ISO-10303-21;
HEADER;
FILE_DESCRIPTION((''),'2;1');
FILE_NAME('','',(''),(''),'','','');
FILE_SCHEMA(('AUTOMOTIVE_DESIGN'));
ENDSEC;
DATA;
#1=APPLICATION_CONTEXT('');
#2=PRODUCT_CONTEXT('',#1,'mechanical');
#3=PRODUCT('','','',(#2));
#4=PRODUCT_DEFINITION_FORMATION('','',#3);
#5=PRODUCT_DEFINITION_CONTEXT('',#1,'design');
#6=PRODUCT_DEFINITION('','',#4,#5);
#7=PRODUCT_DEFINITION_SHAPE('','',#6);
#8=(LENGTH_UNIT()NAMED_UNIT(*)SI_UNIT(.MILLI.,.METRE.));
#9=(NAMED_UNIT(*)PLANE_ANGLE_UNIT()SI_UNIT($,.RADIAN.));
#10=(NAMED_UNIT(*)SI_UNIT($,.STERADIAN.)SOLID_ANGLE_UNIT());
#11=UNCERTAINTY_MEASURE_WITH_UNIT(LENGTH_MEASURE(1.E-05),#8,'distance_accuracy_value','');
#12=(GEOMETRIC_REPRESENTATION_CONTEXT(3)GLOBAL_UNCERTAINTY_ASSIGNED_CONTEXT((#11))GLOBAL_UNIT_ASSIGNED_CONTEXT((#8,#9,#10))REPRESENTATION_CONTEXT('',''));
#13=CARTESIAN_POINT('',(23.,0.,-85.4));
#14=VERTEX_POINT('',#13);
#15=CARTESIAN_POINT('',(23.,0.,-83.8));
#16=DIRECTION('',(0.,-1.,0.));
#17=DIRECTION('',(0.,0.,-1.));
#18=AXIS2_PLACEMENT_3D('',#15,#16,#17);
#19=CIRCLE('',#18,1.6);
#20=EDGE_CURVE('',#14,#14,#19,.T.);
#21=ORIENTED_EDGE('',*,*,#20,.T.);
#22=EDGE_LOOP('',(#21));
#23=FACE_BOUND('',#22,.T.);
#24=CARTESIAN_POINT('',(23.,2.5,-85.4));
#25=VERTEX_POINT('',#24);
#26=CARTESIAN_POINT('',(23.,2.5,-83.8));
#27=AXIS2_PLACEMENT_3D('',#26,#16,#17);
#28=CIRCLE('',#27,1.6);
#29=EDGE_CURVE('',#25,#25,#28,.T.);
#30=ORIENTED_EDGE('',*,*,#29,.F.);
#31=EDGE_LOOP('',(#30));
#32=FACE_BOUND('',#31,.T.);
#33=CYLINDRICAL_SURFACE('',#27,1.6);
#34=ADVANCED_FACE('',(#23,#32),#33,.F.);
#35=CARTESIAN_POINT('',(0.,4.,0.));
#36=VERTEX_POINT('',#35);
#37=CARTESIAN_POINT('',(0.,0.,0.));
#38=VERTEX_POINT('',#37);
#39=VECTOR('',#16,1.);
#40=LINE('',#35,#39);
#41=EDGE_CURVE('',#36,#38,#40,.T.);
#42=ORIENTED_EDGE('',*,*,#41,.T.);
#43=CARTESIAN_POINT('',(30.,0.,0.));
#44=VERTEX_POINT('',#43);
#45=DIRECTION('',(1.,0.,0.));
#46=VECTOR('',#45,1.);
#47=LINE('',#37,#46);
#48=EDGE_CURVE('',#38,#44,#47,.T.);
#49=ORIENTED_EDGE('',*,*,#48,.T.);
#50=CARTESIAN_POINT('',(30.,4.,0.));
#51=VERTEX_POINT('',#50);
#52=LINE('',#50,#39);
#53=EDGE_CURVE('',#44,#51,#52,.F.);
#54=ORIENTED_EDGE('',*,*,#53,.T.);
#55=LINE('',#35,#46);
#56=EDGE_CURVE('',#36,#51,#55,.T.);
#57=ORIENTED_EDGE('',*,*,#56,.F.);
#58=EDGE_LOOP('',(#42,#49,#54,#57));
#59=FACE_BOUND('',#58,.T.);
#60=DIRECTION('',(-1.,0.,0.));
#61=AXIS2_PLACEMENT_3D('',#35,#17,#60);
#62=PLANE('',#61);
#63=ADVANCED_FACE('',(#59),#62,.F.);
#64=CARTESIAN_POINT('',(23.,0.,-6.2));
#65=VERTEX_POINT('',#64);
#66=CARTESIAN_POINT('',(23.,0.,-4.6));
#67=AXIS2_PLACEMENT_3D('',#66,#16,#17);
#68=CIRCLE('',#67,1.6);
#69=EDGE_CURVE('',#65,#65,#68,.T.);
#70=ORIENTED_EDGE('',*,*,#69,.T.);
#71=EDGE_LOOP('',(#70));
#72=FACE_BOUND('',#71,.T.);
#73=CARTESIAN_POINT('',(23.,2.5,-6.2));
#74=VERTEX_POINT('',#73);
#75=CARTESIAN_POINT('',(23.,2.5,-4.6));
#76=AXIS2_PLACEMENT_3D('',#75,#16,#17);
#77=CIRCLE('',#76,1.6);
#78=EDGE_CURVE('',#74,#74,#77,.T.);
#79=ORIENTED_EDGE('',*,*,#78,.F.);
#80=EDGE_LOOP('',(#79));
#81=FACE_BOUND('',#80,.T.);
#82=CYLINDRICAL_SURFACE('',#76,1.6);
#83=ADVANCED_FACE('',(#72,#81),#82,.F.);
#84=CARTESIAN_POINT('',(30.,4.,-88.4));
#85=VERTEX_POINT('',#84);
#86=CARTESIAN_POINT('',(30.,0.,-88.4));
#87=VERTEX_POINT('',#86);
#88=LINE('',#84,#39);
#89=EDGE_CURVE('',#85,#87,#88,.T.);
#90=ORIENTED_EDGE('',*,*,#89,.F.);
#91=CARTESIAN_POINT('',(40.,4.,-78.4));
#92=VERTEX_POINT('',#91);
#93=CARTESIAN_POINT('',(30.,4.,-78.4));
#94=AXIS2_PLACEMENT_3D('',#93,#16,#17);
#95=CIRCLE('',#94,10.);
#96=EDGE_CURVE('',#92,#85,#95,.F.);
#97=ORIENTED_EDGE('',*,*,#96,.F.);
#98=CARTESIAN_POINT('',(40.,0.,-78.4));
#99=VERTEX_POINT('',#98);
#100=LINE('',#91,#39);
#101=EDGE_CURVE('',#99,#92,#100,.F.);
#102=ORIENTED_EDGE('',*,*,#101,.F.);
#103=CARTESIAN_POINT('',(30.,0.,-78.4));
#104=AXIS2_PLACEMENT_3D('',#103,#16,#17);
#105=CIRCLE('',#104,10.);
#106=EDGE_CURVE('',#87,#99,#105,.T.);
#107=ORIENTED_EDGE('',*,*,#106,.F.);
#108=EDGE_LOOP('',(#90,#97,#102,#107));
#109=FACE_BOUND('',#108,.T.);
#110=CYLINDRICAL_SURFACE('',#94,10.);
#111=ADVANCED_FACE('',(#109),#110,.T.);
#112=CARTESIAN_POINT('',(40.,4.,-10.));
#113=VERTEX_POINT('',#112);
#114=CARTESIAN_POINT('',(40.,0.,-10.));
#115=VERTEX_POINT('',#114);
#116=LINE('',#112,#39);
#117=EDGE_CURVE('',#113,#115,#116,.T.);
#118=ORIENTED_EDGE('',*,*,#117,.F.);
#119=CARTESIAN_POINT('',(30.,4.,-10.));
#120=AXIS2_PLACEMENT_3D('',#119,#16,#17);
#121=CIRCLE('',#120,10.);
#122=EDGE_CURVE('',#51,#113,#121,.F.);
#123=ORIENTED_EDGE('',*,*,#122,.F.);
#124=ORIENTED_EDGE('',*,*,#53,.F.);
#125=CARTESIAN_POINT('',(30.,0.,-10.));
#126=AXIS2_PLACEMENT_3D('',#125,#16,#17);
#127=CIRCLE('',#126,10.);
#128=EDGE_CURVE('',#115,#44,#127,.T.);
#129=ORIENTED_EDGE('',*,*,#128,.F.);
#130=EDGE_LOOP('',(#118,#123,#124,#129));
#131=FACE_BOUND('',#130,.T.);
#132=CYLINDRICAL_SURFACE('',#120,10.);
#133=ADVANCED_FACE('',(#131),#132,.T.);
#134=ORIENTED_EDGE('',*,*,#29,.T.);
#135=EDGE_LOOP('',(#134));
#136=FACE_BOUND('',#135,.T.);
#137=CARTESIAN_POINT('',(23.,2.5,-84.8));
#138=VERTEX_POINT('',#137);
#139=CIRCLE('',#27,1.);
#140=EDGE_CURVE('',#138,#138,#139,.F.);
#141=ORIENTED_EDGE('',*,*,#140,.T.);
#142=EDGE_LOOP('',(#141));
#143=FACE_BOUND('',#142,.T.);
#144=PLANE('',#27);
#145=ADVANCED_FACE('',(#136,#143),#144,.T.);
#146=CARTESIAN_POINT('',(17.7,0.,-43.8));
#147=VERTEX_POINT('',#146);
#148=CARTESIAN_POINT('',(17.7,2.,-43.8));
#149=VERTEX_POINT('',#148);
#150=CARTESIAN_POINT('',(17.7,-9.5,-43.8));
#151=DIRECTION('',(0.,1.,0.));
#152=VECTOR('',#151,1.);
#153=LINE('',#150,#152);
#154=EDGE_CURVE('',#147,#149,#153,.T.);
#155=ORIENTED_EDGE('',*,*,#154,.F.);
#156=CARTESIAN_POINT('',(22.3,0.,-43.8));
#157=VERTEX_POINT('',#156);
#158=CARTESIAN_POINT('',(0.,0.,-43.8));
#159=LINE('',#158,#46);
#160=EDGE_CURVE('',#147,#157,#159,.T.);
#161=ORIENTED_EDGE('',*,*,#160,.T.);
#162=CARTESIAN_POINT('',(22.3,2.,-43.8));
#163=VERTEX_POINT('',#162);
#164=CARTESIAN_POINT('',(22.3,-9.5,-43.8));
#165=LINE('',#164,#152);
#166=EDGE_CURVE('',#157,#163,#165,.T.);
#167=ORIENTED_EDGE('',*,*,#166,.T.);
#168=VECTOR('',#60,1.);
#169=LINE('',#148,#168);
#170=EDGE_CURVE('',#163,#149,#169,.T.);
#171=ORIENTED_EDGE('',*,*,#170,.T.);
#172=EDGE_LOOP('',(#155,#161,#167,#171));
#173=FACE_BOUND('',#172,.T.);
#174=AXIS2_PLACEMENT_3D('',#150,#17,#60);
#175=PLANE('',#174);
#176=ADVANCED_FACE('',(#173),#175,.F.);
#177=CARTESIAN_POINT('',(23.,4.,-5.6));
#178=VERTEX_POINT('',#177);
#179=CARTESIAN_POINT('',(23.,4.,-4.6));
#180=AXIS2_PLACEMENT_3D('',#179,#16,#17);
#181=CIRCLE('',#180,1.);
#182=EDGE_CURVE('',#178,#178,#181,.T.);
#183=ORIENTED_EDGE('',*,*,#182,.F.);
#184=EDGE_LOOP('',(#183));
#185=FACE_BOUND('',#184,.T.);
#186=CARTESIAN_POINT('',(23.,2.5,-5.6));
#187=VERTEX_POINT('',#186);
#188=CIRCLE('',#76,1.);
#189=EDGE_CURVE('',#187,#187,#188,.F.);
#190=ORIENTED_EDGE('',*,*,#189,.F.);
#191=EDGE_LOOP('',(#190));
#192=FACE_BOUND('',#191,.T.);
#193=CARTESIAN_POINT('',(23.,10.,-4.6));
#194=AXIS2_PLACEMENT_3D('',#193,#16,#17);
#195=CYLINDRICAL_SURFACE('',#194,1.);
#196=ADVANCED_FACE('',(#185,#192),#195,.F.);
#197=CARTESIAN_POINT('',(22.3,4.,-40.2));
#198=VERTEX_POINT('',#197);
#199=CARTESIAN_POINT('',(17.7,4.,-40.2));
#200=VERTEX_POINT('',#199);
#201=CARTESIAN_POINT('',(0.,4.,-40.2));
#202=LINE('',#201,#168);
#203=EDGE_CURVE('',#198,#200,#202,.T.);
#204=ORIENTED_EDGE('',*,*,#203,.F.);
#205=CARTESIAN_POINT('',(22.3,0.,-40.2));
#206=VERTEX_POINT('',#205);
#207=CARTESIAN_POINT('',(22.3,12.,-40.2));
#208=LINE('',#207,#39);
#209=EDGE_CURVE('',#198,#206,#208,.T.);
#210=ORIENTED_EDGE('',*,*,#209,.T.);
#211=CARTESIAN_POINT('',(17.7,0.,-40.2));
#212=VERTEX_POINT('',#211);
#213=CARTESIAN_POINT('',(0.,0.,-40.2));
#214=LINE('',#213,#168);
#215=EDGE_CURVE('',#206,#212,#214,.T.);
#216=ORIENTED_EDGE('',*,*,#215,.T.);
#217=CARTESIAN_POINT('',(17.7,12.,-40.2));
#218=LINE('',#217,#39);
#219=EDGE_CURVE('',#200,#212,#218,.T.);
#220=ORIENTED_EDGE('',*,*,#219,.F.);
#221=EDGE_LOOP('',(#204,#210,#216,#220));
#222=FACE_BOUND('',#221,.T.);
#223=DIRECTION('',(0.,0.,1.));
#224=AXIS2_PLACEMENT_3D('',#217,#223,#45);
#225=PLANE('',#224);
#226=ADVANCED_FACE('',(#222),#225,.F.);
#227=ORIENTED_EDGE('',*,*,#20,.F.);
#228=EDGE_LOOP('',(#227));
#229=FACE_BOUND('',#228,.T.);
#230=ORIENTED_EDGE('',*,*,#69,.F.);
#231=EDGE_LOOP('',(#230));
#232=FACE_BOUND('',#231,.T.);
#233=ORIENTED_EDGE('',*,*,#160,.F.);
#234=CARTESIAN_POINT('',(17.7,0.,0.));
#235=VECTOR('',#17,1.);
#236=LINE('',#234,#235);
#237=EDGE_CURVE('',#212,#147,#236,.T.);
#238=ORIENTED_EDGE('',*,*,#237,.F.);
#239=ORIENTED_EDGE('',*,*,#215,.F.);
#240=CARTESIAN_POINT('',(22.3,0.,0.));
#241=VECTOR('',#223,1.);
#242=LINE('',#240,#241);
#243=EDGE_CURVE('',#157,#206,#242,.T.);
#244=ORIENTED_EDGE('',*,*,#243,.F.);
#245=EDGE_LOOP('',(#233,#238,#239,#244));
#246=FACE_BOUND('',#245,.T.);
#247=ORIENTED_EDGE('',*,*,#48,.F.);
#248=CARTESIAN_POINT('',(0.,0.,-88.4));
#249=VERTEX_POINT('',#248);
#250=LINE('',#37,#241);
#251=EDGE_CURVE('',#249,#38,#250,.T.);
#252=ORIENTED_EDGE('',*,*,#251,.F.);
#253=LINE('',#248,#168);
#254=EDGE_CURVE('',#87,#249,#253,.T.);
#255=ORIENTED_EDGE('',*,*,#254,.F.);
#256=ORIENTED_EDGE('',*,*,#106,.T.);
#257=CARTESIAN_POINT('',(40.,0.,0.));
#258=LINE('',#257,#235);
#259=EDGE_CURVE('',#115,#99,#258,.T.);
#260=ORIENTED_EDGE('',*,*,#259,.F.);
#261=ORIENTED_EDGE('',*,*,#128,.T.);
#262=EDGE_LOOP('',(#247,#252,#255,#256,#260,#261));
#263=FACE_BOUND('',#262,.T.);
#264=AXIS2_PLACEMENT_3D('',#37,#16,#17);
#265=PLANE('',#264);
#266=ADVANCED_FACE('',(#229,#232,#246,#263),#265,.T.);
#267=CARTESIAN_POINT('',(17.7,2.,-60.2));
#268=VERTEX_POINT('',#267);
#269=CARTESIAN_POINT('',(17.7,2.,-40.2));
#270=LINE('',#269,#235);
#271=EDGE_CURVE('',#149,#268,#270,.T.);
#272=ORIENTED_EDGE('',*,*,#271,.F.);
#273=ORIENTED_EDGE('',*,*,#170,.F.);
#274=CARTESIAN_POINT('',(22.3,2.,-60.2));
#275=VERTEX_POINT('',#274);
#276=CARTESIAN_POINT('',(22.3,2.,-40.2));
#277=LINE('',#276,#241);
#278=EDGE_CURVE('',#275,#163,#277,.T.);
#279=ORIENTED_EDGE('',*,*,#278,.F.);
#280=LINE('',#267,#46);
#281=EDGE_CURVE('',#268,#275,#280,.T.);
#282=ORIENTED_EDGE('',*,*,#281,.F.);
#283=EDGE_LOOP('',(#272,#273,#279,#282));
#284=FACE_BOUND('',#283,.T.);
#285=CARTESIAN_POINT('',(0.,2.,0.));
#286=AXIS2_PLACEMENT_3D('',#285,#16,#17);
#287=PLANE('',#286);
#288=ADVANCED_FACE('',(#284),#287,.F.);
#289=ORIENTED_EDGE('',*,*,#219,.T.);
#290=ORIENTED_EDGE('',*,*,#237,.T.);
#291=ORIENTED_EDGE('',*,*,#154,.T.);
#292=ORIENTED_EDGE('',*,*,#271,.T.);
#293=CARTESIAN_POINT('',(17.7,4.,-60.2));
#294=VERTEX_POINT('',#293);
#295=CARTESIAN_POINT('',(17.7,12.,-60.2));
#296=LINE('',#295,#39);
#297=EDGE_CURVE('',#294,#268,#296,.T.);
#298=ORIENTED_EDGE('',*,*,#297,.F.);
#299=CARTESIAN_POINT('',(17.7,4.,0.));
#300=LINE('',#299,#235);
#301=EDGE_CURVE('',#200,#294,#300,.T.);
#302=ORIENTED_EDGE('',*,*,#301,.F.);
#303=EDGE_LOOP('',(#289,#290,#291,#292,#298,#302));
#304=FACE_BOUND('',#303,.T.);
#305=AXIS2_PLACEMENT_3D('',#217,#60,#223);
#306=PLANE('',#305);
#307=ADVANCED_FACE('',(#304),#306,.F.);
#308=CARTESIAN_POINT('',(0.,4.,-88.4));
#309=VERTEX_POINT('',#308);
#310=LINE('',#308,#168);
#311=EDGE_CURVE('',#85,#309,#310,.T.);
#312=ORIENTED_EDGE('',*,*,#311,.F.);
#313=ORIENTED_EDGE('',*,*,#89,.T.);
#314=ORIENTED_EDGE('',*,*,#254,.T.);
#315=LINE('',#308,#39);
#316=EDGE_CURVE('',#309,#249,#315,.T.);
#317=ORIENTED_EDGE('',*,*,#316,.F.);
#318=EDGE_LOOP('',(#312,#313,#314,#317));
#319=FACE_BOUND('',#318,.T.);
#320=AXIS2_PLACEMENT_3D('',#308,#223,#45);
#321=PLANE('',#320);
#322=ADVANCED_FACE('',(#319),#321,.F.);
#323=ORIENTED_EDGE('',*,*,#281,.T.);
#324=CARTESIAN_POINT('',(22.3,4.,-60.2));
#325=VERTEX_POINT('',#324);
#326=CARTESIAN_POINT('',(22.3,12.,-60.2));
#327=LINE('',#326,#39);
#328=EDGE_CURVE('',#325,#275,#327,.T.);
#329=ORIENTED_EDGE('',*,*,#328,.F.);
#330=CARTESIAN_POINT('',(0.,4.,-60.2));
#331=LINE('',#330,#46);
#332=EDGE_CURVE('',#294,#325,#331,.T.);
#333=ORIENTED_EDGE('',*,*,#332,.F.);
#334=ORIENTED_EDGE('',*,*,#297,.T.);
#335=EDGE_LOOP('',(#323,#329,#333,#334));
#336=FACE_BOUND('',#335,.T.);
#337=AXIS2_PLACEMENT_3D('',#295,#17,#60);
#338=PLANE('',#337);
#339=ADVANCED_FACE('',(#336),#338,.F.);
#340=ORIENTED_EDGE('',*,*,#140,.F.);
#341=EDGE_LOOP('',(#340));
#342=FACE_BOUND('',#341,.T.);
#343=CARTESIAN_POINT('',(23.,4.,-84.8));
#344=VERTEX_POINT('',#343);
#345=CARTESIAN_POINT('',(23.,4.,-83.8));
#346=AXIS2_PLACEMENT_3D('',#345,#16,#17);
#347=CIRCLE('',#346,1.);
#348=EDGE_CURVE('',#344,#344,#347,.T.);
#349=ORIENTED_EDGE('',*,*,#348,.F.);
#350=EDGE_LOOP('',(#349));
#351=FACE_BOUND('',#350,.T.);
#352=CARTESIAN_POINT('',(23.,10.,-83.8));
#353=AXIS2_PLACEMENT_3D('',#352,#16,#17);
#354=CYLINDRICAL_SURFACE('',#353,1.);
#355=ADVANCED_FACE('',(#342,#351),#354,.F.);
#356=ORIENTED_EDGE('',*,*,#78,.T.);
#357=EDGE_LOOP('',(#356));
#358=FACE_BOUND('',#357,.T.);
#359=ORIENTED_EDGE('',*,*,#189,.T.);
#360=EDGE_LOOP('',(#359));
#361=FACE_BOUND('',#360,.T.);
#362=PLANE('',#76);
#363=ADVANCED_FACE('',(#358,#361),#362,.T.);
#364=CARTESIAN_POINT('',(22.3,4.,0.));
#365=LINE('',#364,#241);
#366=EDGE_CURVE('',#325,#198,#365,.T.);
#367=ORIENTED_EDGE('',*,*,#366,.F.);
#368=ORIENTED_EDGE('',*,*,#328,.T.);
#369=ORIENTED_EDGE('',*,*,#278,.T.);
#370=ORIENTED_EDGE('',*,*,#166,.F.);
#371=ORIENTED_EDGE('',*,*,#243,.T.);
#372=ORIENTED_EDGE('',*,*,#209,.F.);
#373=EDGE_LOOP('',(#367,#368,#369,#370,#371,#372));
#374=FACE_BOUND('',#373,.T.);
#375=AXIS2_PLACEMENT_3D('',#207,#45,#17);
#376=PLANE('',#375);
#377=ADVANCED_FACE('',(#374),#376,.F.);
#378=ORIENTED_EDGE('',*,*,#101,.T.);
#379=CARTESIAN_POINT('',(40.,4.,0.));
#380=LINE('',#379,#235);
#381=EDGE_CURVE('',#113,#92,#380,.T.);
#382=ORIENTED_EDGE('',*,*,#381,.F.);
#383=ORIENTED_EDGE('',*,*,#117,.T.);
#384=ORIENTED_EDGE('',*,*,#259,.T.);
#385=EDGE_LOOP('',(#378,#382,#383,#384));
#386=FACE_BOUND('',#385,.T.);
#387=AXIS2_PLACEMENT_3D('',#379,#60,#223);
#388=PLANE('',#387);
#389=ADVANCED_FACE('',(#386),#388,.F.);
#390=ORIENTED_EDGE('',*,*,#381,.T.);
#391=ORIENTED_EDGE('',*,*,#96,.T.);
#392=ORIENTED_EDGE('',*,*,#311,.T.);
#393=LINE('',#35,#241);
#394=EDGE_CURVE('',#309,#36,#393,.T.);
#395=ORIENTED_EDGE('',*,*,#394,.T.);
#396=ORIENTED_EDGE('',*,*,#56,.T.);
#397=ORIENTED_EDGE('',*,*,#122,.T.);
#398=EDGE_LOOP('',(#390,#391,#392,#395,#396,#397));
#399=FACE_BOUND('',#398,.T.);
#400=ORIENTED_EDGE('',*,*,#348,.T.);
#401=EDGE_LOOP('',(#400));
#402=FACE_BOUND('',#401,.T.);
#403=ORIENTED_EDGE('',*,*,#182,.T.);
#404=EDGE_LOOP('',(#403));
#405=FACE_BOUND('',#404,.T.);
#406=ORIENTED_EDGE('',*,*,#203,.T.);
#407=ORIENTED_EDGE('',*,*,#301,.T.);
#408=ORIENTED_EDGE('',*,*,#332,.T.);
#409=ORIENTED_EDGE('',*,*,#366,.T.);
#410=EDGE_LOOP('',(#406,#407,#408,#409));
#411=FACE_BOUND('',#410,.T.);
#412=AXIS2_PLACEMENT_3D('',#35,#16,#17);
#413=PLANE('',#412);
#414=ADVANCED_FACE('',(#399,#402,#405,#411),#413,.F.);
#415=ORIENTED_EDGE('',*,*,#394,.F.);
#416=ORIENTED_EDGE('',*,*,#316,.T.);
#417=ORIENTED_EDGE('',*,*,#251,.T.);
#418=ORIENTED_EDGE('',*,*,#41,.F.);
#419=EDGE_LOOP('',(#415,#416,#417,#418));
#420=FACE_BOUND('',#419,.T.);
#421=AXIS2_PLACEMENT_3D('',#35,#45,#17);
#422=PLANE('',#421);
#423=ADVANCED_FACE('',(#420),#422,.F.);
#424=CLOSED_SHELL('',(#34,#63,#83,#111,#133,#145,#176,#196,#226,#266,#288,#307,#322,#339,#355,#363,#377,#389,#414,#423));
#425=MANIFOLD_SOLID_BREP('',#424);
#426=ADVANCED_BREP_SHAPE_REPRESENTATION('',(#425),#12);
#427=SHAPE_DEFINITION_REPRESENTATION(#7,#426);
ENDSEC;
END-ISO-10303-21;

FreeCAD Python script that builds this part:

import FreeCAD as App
import Part
import Sketcher
from FreeCAD import Vector


def edges_at(feature, points):
    """Names of the edges that pass closest to the given points."""
    edges = feature.Shape.Edges
    near = lambda p: min(range(len(edges)), key=lambda i: edges[i].distToShape(Part.Vertex(*p))[0])
    return sorted({f"Edge{near(p) + 1}" for p in points})


def add_polygon(sketch, points):
    """Adds a closed chain of lines whose ends are joined by coincident constraints."""
    first, n = sketch.GeometryCount, len(points)
    for a, b in zip(points, points[1:] + points[:1]):
        sketch.addGeometry(Part.LineSegment(App.Vector(*a, 0), App.Vector(*b, 0)), False)
    for i in range(n):
        sketch.addConstraint(Sketcher.Constraint("Coincident", first + i, 2, first + (i + 1) % n, 1))

doc = App.newDocument("Part")
body = doc.addObject("PartDesign::Body", "Body")

sketch1 = body.newObject("Sketcher::SketchObject", "Sketch")
sketch1.AttachmentSupport = (doc.getObject("XZ_Plane"), [""])
sketch1.MapMode = "FlatFace"
add_polygon(sketch1, [(0, -88), (0, 0), (40, 0), (40, -88)])
sketch1.addConstraint([
    Sketcher.Constraint("Vertical", 0),
    Sketcher.Constraint("Horizontal", 1),
    Sketcher.Constraint("Vertical", 2),
    Sketcher.Constraint("Horizontal", 3),
    Sketcher.Constraint("Coincident", 0, 2, -1, 1),
    Sketcher.Constraint("DistanceX", 1, 1, 1, 2, 40.0),
    Sketcher.Constraint("DistanceY", 0, 1, 0, 2, 88.4),
])
pad1 = body.newObject("PartDesign::Pad", "Pad")
pad1.Profile = sketch1
pad1.Length = 4
pad1.Reversed = True
doc.recompute()

fillet = body.newObject("PartDesign::Fillet", "Fillet")
fillet.Base = (pad1, edges_at(pad1, [(40, 2, -88.4), (40, 2, 0)]))
fillet.Radius = 10

sketch2 = body.newObject("Sketcher::SketchObject", "Sketch001")
sketch2.AttachmentSupport = (doc.getObject("XZ_Plane"), [""])
sketch2.MapMode = "FlatFace"
sketch2.addGeometry([
    Part.Circle(Vector(23, -4.6, 0), Vector(0, 0, 1), 1),
    Part.Circle(Vector(23, -83.8, 0), Vector(0, 0, 1), 1),
], False)
sketch2.addConstraint([
    Sketcher.Constraint("Equal", 0, 1),
    Sketcher.Constraint("Vertical", 0, 3, 1, 3),
    Sketcher.Constraint("Diameter", 0, 2.0),
    Sketcher.Constraint("DistanceX", -1, 1, 0, 3, 23.0),
    Sketcher.Constraint("DistanceY", 0, 3, -1, 1, 4.6),
    Sketcher.Constraint("DistanceY", 1, 3, -1, 1, 83.8),
])
pocket1 = body.newObject("PartDesign::Pocket", "Pocket")
pocket1.Profile = sketch2
pocket1.Length = 10

sketch3 = body.newObject("Sketcher::SketchObject", "Sketch002")
sketch3.AttachmentSupport = (doc.getObject("XZ_Plane"), [""])
sketch3.MapMode = "FlatFace"
sketch3.addGeometry([
    Part.Circle(Vector(23, -4.6, 0), Vector(0, 0, 1), 1.6),
    Part.Circle(Vector(23, -83.8, 0), Vector(0, 0, 1), 1.6),
], False)
sketch3.addConstraint([
    Sketcher.Constraint("Equal", 0, 1),
    Sketcher.Constraint("Vertical", 0, 3, 1, 3),
    Sketcher.Constraint("Diameter", 0, 3.2),
    Sketcher.Constraint("DistanceX", -1, 1, 0, 3, 23.0),
    Sketcher.Constraint("DistanceY", 0, 3, -1, 1, 4.6),
    Sketcher.Constraint("DistanceY", 1, 3, -1, 1, 83.8),
])
pocket2 = body.newObject("PartDesign::Pocket", "Pocket001")
pocket2.Profile = sketch3
pocket2.Length = 2.5

sketch4 = body.newObject("Sketcher::SketchObject", "Sketch003")
sketch4.AttachmentSupport = (doc.getObject("XZ_Plane"), [""])
sketch4.MapMode = "FlatFace"
sketch4.AttachmentOffset = App.Placement(Vector(0, 0, -2), App.Rotation())
add_polygon(sketch4, [(17.7, -40.2), (17.7, -60.2), (22.3, -60.2), (22.3, -40.2)])
sketch4.addConstraint([
    Sketcher.Constraint("Vertical", 0),
    Sketcher.Constraint("Horizontal", 1),
    Sketcher.Constraint("Vertical", 2),
    Sketcher.Constraint("Horizontal", 3),
    Sketcher.Constraint("DistanceY", 0, 2, 0, 1, 20.0),
    Sketcher.Constraint("DistanceX", 1, 1, 1, 2, 4.6),
    Sketcher.Constraint("DistanceX", -1, 1, 0, 2, 17.7),
    Sketcher.Constraint("DistanceY", 0, 2, -1, 1, 60.2),
])
pocket3 = body.newObject("PartDesign::Pocket", "Pocket002")
pocket3.Profile = sketch4
pocket3.Length = 10

sketch5 = body.newObject("Sketcher::SketchObject", "Sketch004")
sketch5.AttachmentSupport = (doc.getObject("XZ_Plane"), [""])
sketch5.MapMode = "FlatFace"
sketch5.AttachmentOffset = App.Placement(Vector(0, 0, -2), App.Rotation())
add_polygon(sketch5, [(17.7, -43.8), (17.7, -40.2), (22.3, -40.2), (22.3, -43.8)])
sketch5.addConstraint([
    Sketcher.Constraint("Vertical", 0),
    Sketcher.Constraint("Horizontal", 1),
    Sketcher.Constraint("Vertical", 2),
    Sketcher.Constraint("Horizontal", 3),
    Sketcher.Constraint("DistanceX", 1, 1, 1, 2, 4.6),
    Sketcher.Constraint("DistanceY", 0, 1, 0, 2, 3.6),
    Sketcher.Constraint("DistanceX", -1, 1, 0, 2, 17.7),
    Sketcher.Constraint("DistanceY", 0, 2, -1, 1, 40.2),
])
pocket4 = body.newObject("PartDesign::Pocket", "Pocket003")
pocket4.Profile = sketch5
pocket4.Length = 11.5
pocket4.Reversed = True

doc.recompute()
